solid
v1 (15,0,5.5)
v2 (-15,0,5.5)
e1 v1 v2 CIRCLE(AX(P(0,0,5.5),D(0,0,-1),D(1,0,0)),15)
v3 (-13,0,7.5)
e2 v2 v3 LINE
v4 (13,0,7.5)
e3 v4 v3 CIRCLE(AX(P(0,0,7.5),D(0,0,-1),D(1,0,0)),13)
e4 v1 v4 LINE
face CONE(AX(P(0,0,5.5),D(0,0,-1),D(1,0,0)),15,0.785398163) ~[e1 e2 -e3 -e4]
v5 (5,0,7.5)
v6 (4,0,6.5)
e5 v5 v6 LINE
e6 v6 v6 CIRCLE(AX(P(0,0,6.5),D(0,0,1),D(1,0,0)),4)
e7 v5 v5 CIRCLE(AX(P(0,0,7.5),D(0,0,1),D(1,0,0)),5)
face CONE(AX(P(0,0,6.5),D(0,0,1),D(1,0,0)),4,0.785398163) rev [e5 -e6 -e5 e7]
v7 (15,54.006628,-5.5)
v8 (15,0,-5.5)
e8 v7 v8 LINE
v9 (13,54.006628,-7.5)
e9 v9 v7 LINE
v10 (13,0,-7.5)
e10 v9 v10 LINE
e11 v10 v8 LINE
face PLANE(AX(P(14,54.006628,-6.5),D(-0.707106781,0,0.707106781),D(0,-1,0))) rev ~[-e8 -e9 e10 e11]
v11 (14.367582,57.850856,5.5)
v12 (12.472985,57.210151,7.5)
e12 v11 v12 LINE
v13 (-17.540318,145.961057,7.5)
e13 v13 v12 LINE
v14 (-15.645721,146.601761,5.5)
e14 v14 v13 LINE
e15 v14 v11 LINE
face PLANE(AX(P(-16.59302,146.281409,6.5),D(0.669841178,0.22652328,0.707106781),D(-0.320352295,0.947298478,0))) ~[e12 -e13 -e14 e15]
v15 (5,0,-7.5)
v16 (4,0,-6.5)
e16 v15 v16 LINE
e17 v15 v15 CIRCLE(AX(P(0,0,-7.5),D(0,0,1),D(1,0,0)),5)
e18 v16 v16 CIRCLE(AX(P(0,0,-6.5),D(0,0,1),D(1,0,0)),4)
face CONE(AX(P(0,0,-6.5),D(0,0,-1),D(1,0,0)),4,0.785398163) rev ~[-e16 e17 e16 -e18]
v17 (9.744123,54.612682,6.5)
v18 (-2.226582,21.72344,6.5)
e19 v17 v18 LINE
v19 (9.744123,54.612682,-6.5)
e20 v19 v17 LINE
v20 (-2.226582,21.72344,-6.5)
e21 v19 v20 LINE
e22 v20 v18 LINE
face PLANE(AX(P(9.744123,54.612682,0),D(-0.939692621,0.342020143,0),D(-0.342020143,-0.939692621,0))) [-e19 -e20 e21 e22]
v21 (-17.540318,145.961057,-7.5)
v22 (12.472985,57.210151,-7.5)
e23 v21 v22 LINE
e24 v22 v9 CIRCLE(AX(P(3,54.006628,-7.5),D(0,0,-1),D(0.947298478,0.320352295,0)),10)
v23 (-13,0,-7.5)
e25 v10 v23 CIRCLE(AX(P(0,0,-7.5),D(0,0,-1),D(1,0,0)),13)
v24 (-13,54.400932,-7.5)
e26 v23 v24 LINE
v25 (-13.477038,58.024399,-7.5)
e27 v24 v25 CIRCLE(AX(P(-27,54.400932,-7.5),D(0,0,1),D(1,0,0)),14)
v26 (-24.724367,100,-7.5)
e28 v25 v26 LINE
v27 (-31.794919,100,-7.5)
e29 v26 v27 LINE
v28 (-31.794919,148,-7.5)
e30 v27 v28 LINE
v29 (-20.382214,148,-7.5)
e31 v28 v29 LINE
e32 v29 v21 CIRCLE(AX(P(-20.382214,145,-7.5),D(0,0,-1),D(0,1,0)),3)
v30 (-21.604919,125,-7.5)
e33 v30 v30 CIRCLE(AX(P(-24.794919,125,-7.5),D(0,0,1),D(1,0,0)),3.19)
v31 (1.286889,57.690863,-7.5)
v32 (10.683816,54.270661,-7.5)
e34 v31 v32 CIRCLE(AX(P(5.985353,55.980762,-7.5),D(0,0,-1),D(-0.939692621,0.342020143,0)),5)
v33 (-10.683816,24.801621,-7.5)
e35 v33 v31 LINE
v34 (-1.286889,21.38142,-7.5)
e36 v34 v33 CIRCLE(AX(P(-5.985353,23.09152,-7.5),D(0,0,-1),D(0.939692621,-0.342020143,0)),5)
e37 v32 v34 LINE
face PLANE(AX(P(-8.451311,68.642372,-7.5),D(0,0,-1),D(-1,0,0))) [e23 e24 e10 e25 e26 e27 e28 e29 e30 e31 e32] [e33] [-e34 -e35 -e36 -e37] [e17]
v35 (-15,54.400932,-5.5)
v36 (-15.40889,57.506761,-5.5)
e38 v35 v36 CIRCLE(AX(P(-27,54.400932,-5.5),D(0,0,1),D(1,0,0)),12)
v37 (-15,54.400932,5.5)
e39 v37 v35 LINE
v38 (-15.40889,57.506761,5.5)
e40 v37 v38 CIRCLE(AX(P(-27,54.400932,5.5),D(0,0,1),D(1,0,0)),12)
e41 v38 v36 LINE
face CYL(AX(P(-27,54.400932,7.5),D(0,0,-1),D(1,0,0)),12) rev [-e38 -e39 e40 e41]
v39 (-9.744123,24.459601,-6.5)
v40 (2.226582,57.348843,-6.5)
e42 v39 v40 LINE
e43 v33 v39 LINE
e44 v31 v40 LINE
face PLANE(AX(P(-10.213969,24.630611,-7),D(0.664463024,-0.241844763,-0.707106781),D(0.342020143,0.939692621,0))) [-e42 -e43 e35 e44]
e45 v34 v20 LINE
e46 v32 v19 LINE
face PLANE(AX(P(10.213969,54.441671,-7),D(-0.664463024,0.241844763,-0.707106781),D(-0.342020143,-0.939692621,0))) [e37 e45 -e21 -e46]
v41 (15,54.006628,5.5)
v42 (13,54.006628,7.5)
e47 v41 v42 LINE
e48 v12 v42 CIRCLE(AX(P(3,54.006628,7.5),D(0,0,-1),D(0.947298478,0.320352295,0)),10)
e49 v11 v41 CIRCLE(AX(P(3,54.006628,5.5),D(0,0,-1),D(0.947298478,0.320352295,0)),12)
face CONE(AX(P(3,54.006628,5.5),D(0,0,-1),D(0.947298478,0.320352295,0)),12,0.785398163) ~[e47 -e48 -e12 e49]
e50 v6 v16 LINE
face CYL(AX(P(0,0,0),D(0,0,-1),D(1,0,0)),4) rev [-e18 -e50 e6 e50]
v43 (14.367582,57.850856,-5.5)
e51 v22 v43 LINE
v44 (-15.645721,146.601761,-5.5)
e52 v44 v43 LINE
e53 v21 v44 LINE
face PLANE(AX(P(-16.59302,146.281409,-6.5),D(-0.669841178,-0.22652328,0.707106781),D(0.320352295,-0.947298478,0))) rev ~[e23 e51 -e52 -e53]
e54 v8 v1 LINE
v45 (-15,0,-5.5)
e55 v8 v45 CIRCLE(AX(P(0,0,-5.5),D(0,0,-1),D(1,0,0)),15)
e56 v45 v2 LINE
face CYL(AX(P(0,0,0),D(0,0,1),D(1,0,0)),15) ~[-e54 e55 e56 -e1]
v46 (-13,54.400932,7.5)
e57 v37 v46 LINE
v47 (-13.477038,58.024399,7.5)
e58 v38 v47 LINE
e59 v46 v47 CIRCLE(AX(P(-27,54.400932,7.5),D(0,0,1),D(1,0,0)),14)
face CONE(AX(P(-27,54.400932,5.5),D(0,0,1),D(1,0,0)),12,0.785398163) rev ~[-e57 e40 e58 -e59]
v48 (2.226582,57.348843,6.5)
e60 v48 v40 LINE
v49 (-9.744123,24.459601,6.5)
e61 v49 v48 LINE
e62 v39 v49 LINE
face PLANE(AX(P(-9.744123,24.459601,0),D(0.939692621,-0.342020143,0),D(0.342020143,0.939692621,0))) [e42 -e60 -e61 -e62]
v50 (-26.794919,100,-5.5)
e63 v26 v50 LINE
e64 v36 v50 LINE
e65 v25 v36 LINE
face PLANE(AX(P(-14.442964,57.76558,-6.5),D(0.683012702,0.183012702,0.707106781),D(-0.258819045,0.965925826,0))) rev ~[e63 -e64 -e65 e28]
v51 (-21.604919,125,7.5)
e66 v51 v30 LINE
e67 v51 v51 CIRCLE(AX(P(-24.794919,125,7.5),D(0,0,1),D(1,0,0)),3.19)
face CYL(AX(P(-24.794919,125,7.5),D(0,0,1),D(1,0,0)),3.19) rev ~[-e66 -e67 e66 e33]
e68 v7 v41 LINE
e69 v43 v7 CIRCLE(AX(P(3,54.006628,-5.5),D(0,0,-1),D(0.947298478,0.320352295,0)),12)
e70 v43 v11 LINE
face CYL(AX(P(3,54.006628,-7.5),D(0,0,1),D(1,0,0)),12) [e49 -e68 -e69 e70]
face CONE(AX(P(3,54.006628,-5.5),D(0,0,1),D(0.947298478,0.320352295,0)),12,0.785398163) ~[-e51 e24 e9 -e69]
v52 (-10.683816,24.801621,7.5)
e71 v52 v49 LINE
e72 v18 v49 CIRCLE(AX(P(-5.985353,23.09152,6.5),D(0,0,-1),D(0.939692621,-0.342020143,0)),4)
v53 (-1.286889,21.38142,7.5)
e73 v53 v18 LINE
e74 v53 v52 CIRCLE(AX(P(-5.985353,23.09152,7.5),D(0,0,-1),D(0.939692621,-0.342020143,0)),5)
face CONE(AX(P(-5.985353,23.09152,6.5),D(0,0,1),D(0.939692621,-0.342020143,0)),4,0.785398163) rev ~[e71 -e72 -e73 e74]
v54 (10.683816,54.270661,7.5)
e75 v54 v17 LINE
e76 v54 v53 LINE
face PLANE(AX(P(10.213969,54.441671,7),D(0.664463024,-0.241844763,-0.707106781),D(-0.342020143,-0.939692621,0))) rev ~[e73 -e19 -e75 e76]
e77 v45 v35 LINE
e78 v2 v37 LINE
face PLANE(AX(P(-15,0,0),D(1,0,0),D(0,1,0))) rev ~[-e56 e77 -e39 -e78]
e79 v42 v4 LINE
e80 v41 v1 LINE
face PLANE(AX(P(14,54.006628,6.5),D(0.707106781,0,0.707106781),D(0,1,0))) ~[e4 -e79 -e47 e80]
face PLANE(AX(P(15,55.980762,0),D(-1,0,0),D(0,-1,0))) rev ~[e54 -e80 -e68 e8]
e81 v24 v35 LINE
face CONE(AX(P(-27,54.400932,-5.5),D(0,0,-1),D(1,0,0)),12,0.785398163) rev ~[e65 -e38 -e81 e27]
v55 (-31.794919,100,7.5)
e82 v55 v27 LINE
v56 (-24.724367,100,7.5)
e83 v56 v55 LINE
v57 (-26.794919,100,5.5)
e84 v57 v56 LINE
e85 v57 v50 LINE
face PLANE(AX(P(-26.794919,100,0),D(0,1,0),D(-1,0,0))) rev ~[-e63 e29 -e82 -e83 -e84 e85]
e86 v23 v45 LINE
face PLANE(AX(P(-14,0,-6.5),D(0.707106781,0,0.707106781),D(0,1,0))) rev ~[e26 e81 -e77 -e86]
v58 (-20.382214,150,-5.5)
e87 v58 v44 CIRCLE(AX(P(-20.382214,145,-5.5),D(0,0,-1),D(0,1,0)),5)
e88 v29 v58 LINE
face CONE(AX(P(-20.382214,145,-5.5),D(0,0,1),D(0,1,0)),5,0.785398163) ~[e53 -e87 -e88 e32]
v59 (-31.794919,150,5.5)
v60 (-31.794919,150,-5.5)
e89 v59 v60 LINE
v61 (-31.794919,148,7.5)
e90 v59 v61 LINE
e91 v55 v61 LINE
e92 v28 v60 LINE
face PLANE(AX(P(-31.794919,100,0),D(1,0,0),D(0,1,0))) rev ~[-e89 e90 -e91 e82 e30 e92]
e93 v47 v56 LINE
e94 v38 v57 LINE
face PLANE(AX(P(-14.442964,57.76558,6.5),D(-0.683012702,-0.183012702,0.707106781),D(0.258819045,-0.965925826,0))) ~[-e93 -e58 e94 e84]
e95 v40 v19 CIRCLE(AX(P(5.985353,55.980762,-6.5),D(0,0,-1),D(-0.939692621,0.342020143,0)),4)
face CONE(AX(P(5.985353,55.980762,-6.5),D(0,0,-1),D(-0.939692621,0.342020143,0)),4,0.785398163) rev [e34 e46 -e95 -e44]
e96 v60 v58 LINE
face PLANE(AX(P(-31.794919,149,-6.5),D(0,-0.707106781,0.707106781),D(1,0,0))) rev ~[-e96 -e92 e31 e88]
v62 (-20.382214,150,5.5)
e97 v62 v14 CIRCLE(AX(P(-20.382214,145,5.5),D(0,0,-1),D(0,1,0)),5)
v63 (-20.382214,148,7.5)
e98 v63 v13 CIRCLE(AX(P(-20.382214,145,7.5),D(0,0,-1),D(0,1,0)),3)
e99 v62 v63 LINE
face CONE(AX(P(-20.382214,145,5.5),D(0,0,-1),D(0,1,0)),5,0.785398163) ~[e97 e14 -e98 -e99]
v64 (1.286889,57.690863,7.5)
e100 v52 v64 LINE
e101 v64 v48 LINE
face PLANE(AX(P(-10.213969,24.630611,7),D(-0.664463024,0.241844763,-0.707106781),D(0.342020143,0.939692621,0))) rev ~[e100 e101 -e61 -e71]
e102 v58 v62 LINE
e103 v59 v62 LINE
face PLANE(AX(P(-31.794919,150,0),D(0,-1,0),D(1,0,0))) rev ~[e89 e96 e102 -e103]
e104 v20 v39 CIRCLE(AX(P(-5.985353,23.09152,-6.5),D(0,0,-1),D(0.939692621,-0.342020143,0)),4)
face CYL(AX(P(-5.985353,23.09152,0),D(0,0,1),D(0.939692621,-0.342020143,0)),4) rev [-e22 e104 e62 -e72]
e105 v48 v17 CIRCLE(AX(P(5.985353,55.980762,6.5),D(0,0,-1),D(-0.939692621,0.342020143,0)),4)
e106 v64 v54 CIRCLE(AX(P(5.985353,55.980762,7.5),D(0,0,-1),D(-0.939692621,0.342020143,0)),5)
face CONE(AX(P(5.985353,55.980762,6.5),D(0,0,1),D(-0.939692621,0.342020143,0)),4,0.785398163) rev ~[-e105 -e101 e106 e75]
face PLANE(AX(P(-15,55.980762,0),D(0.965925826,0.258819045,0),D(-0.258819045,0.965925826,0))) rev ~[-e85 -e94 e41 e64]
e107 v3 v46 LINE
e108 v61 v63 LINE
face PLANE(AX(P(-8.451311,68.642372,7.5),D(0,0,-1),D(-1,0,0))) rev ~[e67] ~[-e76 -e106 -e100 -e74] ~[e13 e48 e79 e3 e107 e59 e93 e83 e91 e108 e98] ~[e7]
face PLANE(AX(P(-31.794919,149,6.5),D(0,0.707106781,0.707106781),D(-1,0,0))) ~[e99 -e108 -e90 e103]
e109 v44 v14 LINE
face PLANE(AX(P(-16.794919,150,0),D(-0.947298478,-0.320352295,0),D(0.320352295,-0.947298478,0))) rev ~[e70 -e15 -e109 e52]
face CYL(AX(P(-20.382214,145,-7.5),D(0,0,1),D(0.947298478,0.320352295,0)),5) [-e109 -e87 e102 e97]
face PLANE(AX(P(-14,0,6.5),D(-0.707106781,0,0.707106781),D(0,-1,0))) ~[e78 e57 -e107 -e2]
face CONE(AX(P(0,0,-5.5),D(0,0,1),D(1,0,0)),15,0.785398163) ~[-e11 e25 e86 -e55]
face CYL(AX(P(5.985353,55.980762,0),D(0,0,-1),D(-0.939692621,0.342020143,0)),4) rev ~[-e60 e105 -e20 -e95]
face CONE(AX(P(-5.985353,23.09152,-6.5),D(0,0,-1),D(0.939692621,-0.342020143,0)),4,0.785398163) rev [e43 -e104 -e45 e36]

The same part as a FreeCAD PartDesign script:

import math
import FreeCAD as App
import Part
import Sketcher
from FreeCAD import Vector
Q = App.Units.Quantity


def edges_at(feature, points):
    """Names of the edges that pass closest to the given points."""
    edges = feature.Shape.Edges
    near = lambda p: min(range(len(edges)), key=lambda i: edges[i].distToShape(Part.Vertex(*p))[0])
    return sorted({f"Edge{near(p) + 1}" for p in points})

doc = App.newDocument("Part")
body = doc.addObject("PartDesign::Body", "Body")

# Sketch on XY plane
sketch1 = body.newObject("Sketcher::SketchObject", "Sketch")
sketch1.AttachmentSupport = (doc.getObject("XY_Plane"), [""])
sketch1.MapMode = "FlatFace"
sketch1.addGeometry([
    Part.LineSegment(Vector(-15, 56, 0), Vector(-15, 0, 0)),  # 0
    Part.ArcOfCircle(Part.Circle(Vector(0, 0, 0), Vector(0, 0, 1), 15), math.radians(180), math.radians(360)),  # 1
    Part.LineSegment(Vector(15, 0, 0), Vector(15, 56, 0)),  # 2
    Part.LineSegment(Vector(15, 56, 0), Vector(-16.8, 150, 0)),  # 3
    Part.LineSegment(Vector(-16.8, 150, 0), Vector(-31.8, 150, 0)),  # 4
    Part.LineSegment(Vector(-31.8, 150, 0), Vector(-31.8, 100, 0)),  # 5
    Part.LineSegment(Vector(-31.8, 100, 0), Vector(-26.8, 100, 0)),  # 6
    Part.LineSegment(Vector(-26.8, 100, 0), Vector(-15, 56, 0)),  # 7
    Part.Circle(Vector(0, 0, 0), Vector(0, 0, 1), 4),  # 8
    Part.LineSegment(Vector(9.7, 54.6, 0), Vector(-2.2, 21.7, 0)),  # 9
    Part.ArcOfCircle(Part.Circle(Vector(-6, 23.1, 0), Vector(0, 0, 1), 4), math.radians(160), math.radians(340)),  # 10
    Part.LineSegment(Vector(-9.7, 24.5, 0), Vector(2.2, 57.3, 0)),  # 11
    Part.ArcOfCircle(Part.Circle(Vector(6, 56, 0), Vector(0, 0, 1), 4), math.radians(-20), math.radians(160)),  # 12
], False)
sketch1.addConstraint([
    Sketcher.Constraint("Tangent", 0, 2, 1, 1),
    Sketcher.Constraint("Tangent", 1, 2, 2, 1),
    Sketcher.Constraint("Coincident", 2, 2, 3, 1),
    Sketcher.Constraint("Coincident", 3, 2, 4, 1),
    Sketcher.Constraint("Coincident", 4, 2, 5, 1),
    Sketcher.Constraint("Coincident", 5, 2, 6, 1),
    Sketcher.Constraint("Coincident", 6, 2, 7, 1),
    Sketcher.Constraint("Coincident", 7, 2, 0, 1),
    Sketcher.Constraint("Tangent", 9, 2, 10, 2),
    Sketcher.Constraint("Tangent", 10, 1, 11, 1),
    Sketcher.Constraint("Tangent", 11, 2, 12, 2),
    Sketcher.Constraint("Tangent", 12, 1, 9, 1),
    Sketcher.Constraint("Vertical", 0),
    Sketcher.Constraint("Vertical", 2),
    Sketcher.Constraint("Horizontal", 4),
    Sketcher.Constraint("Vertical", 5),
    Sketcher.Constraint("Horizontal", 6),
    Sketcher.Constraint("Coincident", 1, 3, -1, 1),
    Sketcher.Constraint("Coincident", 8, 3, -1, 1),
    Sketcher.Constraint("Equal", 8, 10),
    Sketcher.Constraint("Equal", 10, 12),
    Sketcher.Constraint("Horizontal", 12, 3, 2, 2),
    Sketcher.Constraint("Horizontal", 2, 2, 7, 2),
    Sketcher.Constraint("Diameter", 8, 8.0),
    Sketcher.Constraint("Radius", 1, 15.0),
    Sketcher.Constraint("DistanceX", 4, 2, 4, 1, 15.0),
    Sketcher.Constraint("DistanceX", 6, 1, 6, 2, 5.0),
    Sketcher.Constraint("DistanceY", 5, 2, 5, 1, 50.0),
    Sketcher.Constraint("Angle", 7, Q("-75 deg")),
    Sketcher.Constraint("Angle", 9, Q("-110 deg")),
    Sketcher.Constraint("Distance", 9, 35.0),
    Sketcher.Constraint("DistanceY", -1, 1, 3, 2, 150.0),
    Sketcher.Constraint("DistanceY", -1, 1, 10, 1, 24.459601),
    Sketcher.Constraint("DistanceX", 3, 2, 12, 3, 22.780272),
])
pad1 = body.newObject("PartDesign::Pad", "Pad")
pad1.Profile = sketch1
pad1.Length = 15
pad1.Midplane = True

# Sketch on XY plane
sketch2 = body.newObject("Sketcher::SketchObject", "Sketch001")
sketch2.AttachmentSupport = (doc.getObject("XY_Plane"), [""])
sketch2.MapMode = "FlatFace"
sketch2.AttachmentOffset = App.Placement(Vector(0, 0, 7.5), App.Rotation())
sketch2.addGeometry(Part.Circle(Vector(-24.8, 125, 0), Vector(0, 0, 1), 3.2), False)
sketch2.addConstraint([
    Sketcher.Constraint("Diameter", 0, 6.38),
    Sketcher.Constraint("DistanceY", -1, 1, 0, 3, 125.0),
    Sketcher.Constraint("DistanceX", 0, 3, -1, 1, 24.794919),
])
pocket1 = body.newObject("PartDesign::Pocket", "Pocket")
pocket1.Profile = sketch2
pocket1.Type = "ThroughAll"
doc.recompute()

fillet = body.newObject("PartDesign::Fillet", "Fillet")
fillet.Base = (pocket1, edges_at(pocket1, [(-15, 55.981, 0), (15, 55.981, 0)]))
fillet.Radius = 12
doc.recompute()

chamfer = body.newObject("PartDesign::Chamfer", "Chamfer")
chamfer.Base = (fillet, edges_at(fillet, [(-4, 0, -7.5), (-4, 0, 7.5)]))
chamfer.Size = 1
doc.recompute()

fillet2 = body.newObject("PartDesign::Fillet", "Fillet001")
fillet2.Base = (chamfer, edges_at(chamfer, [(-16.795, 150, 0)]))
fillet2.Radius = 5
doc.recompute()

chamfer2 = body.newObject("PartDesign::Chamfer", "Chamfer001")
chamfer2.Base = (fillet2, edges_at(fillet2, [
    (15, 27.003, -7.5),
    (0, -15, -7.5),
    (-21.102, 78.753, 7.5),
    (0, -15, 7.5),
    (-15, 27.2, -7.5),
    (-15, 27.2, 7.5),
    (-0.639, 102.226, -7.5),
    (-0.639, 102.226, 7.5),
    (14.841, 55.955, -7.5),
    (14.841, 55.955, 7.5),
    (-15.103, 55.967, -7.5),
    (-15.103, 55.967, 7.5),
    (-26.089, 150, -7.5),
    (-26.089, 150, 7.5),
    (-17.467, 149.063, -7.5),
    (-17.467, 149.063, 7.5),
    (15, 27.003, 7.5),
    (-21.102, 78.753, -7.5),
]))
chamfer2.Size = 2
doc.recompute()

chamfer3 = body.newObject("PartDesign::Chamfer", "Chamfer002")
chamfer3.Base = (chamfer2, edges_at(chamfer2, [
    (7.353, 59.74, -7.5),
    (-3.759, 40.904, -7.5),
    (-7.353, 19.333, -7.5),
    (3.759, 38.168, -7.5),
    (7.353, 59.74, 7.5),
    (-3.759, 40.904, 7.5),
    (-7.353, 19.333, 7.5),
    (3.759, 38.168, 7.5),
]))
chamfer3.Size = 1

doc.recompute()
